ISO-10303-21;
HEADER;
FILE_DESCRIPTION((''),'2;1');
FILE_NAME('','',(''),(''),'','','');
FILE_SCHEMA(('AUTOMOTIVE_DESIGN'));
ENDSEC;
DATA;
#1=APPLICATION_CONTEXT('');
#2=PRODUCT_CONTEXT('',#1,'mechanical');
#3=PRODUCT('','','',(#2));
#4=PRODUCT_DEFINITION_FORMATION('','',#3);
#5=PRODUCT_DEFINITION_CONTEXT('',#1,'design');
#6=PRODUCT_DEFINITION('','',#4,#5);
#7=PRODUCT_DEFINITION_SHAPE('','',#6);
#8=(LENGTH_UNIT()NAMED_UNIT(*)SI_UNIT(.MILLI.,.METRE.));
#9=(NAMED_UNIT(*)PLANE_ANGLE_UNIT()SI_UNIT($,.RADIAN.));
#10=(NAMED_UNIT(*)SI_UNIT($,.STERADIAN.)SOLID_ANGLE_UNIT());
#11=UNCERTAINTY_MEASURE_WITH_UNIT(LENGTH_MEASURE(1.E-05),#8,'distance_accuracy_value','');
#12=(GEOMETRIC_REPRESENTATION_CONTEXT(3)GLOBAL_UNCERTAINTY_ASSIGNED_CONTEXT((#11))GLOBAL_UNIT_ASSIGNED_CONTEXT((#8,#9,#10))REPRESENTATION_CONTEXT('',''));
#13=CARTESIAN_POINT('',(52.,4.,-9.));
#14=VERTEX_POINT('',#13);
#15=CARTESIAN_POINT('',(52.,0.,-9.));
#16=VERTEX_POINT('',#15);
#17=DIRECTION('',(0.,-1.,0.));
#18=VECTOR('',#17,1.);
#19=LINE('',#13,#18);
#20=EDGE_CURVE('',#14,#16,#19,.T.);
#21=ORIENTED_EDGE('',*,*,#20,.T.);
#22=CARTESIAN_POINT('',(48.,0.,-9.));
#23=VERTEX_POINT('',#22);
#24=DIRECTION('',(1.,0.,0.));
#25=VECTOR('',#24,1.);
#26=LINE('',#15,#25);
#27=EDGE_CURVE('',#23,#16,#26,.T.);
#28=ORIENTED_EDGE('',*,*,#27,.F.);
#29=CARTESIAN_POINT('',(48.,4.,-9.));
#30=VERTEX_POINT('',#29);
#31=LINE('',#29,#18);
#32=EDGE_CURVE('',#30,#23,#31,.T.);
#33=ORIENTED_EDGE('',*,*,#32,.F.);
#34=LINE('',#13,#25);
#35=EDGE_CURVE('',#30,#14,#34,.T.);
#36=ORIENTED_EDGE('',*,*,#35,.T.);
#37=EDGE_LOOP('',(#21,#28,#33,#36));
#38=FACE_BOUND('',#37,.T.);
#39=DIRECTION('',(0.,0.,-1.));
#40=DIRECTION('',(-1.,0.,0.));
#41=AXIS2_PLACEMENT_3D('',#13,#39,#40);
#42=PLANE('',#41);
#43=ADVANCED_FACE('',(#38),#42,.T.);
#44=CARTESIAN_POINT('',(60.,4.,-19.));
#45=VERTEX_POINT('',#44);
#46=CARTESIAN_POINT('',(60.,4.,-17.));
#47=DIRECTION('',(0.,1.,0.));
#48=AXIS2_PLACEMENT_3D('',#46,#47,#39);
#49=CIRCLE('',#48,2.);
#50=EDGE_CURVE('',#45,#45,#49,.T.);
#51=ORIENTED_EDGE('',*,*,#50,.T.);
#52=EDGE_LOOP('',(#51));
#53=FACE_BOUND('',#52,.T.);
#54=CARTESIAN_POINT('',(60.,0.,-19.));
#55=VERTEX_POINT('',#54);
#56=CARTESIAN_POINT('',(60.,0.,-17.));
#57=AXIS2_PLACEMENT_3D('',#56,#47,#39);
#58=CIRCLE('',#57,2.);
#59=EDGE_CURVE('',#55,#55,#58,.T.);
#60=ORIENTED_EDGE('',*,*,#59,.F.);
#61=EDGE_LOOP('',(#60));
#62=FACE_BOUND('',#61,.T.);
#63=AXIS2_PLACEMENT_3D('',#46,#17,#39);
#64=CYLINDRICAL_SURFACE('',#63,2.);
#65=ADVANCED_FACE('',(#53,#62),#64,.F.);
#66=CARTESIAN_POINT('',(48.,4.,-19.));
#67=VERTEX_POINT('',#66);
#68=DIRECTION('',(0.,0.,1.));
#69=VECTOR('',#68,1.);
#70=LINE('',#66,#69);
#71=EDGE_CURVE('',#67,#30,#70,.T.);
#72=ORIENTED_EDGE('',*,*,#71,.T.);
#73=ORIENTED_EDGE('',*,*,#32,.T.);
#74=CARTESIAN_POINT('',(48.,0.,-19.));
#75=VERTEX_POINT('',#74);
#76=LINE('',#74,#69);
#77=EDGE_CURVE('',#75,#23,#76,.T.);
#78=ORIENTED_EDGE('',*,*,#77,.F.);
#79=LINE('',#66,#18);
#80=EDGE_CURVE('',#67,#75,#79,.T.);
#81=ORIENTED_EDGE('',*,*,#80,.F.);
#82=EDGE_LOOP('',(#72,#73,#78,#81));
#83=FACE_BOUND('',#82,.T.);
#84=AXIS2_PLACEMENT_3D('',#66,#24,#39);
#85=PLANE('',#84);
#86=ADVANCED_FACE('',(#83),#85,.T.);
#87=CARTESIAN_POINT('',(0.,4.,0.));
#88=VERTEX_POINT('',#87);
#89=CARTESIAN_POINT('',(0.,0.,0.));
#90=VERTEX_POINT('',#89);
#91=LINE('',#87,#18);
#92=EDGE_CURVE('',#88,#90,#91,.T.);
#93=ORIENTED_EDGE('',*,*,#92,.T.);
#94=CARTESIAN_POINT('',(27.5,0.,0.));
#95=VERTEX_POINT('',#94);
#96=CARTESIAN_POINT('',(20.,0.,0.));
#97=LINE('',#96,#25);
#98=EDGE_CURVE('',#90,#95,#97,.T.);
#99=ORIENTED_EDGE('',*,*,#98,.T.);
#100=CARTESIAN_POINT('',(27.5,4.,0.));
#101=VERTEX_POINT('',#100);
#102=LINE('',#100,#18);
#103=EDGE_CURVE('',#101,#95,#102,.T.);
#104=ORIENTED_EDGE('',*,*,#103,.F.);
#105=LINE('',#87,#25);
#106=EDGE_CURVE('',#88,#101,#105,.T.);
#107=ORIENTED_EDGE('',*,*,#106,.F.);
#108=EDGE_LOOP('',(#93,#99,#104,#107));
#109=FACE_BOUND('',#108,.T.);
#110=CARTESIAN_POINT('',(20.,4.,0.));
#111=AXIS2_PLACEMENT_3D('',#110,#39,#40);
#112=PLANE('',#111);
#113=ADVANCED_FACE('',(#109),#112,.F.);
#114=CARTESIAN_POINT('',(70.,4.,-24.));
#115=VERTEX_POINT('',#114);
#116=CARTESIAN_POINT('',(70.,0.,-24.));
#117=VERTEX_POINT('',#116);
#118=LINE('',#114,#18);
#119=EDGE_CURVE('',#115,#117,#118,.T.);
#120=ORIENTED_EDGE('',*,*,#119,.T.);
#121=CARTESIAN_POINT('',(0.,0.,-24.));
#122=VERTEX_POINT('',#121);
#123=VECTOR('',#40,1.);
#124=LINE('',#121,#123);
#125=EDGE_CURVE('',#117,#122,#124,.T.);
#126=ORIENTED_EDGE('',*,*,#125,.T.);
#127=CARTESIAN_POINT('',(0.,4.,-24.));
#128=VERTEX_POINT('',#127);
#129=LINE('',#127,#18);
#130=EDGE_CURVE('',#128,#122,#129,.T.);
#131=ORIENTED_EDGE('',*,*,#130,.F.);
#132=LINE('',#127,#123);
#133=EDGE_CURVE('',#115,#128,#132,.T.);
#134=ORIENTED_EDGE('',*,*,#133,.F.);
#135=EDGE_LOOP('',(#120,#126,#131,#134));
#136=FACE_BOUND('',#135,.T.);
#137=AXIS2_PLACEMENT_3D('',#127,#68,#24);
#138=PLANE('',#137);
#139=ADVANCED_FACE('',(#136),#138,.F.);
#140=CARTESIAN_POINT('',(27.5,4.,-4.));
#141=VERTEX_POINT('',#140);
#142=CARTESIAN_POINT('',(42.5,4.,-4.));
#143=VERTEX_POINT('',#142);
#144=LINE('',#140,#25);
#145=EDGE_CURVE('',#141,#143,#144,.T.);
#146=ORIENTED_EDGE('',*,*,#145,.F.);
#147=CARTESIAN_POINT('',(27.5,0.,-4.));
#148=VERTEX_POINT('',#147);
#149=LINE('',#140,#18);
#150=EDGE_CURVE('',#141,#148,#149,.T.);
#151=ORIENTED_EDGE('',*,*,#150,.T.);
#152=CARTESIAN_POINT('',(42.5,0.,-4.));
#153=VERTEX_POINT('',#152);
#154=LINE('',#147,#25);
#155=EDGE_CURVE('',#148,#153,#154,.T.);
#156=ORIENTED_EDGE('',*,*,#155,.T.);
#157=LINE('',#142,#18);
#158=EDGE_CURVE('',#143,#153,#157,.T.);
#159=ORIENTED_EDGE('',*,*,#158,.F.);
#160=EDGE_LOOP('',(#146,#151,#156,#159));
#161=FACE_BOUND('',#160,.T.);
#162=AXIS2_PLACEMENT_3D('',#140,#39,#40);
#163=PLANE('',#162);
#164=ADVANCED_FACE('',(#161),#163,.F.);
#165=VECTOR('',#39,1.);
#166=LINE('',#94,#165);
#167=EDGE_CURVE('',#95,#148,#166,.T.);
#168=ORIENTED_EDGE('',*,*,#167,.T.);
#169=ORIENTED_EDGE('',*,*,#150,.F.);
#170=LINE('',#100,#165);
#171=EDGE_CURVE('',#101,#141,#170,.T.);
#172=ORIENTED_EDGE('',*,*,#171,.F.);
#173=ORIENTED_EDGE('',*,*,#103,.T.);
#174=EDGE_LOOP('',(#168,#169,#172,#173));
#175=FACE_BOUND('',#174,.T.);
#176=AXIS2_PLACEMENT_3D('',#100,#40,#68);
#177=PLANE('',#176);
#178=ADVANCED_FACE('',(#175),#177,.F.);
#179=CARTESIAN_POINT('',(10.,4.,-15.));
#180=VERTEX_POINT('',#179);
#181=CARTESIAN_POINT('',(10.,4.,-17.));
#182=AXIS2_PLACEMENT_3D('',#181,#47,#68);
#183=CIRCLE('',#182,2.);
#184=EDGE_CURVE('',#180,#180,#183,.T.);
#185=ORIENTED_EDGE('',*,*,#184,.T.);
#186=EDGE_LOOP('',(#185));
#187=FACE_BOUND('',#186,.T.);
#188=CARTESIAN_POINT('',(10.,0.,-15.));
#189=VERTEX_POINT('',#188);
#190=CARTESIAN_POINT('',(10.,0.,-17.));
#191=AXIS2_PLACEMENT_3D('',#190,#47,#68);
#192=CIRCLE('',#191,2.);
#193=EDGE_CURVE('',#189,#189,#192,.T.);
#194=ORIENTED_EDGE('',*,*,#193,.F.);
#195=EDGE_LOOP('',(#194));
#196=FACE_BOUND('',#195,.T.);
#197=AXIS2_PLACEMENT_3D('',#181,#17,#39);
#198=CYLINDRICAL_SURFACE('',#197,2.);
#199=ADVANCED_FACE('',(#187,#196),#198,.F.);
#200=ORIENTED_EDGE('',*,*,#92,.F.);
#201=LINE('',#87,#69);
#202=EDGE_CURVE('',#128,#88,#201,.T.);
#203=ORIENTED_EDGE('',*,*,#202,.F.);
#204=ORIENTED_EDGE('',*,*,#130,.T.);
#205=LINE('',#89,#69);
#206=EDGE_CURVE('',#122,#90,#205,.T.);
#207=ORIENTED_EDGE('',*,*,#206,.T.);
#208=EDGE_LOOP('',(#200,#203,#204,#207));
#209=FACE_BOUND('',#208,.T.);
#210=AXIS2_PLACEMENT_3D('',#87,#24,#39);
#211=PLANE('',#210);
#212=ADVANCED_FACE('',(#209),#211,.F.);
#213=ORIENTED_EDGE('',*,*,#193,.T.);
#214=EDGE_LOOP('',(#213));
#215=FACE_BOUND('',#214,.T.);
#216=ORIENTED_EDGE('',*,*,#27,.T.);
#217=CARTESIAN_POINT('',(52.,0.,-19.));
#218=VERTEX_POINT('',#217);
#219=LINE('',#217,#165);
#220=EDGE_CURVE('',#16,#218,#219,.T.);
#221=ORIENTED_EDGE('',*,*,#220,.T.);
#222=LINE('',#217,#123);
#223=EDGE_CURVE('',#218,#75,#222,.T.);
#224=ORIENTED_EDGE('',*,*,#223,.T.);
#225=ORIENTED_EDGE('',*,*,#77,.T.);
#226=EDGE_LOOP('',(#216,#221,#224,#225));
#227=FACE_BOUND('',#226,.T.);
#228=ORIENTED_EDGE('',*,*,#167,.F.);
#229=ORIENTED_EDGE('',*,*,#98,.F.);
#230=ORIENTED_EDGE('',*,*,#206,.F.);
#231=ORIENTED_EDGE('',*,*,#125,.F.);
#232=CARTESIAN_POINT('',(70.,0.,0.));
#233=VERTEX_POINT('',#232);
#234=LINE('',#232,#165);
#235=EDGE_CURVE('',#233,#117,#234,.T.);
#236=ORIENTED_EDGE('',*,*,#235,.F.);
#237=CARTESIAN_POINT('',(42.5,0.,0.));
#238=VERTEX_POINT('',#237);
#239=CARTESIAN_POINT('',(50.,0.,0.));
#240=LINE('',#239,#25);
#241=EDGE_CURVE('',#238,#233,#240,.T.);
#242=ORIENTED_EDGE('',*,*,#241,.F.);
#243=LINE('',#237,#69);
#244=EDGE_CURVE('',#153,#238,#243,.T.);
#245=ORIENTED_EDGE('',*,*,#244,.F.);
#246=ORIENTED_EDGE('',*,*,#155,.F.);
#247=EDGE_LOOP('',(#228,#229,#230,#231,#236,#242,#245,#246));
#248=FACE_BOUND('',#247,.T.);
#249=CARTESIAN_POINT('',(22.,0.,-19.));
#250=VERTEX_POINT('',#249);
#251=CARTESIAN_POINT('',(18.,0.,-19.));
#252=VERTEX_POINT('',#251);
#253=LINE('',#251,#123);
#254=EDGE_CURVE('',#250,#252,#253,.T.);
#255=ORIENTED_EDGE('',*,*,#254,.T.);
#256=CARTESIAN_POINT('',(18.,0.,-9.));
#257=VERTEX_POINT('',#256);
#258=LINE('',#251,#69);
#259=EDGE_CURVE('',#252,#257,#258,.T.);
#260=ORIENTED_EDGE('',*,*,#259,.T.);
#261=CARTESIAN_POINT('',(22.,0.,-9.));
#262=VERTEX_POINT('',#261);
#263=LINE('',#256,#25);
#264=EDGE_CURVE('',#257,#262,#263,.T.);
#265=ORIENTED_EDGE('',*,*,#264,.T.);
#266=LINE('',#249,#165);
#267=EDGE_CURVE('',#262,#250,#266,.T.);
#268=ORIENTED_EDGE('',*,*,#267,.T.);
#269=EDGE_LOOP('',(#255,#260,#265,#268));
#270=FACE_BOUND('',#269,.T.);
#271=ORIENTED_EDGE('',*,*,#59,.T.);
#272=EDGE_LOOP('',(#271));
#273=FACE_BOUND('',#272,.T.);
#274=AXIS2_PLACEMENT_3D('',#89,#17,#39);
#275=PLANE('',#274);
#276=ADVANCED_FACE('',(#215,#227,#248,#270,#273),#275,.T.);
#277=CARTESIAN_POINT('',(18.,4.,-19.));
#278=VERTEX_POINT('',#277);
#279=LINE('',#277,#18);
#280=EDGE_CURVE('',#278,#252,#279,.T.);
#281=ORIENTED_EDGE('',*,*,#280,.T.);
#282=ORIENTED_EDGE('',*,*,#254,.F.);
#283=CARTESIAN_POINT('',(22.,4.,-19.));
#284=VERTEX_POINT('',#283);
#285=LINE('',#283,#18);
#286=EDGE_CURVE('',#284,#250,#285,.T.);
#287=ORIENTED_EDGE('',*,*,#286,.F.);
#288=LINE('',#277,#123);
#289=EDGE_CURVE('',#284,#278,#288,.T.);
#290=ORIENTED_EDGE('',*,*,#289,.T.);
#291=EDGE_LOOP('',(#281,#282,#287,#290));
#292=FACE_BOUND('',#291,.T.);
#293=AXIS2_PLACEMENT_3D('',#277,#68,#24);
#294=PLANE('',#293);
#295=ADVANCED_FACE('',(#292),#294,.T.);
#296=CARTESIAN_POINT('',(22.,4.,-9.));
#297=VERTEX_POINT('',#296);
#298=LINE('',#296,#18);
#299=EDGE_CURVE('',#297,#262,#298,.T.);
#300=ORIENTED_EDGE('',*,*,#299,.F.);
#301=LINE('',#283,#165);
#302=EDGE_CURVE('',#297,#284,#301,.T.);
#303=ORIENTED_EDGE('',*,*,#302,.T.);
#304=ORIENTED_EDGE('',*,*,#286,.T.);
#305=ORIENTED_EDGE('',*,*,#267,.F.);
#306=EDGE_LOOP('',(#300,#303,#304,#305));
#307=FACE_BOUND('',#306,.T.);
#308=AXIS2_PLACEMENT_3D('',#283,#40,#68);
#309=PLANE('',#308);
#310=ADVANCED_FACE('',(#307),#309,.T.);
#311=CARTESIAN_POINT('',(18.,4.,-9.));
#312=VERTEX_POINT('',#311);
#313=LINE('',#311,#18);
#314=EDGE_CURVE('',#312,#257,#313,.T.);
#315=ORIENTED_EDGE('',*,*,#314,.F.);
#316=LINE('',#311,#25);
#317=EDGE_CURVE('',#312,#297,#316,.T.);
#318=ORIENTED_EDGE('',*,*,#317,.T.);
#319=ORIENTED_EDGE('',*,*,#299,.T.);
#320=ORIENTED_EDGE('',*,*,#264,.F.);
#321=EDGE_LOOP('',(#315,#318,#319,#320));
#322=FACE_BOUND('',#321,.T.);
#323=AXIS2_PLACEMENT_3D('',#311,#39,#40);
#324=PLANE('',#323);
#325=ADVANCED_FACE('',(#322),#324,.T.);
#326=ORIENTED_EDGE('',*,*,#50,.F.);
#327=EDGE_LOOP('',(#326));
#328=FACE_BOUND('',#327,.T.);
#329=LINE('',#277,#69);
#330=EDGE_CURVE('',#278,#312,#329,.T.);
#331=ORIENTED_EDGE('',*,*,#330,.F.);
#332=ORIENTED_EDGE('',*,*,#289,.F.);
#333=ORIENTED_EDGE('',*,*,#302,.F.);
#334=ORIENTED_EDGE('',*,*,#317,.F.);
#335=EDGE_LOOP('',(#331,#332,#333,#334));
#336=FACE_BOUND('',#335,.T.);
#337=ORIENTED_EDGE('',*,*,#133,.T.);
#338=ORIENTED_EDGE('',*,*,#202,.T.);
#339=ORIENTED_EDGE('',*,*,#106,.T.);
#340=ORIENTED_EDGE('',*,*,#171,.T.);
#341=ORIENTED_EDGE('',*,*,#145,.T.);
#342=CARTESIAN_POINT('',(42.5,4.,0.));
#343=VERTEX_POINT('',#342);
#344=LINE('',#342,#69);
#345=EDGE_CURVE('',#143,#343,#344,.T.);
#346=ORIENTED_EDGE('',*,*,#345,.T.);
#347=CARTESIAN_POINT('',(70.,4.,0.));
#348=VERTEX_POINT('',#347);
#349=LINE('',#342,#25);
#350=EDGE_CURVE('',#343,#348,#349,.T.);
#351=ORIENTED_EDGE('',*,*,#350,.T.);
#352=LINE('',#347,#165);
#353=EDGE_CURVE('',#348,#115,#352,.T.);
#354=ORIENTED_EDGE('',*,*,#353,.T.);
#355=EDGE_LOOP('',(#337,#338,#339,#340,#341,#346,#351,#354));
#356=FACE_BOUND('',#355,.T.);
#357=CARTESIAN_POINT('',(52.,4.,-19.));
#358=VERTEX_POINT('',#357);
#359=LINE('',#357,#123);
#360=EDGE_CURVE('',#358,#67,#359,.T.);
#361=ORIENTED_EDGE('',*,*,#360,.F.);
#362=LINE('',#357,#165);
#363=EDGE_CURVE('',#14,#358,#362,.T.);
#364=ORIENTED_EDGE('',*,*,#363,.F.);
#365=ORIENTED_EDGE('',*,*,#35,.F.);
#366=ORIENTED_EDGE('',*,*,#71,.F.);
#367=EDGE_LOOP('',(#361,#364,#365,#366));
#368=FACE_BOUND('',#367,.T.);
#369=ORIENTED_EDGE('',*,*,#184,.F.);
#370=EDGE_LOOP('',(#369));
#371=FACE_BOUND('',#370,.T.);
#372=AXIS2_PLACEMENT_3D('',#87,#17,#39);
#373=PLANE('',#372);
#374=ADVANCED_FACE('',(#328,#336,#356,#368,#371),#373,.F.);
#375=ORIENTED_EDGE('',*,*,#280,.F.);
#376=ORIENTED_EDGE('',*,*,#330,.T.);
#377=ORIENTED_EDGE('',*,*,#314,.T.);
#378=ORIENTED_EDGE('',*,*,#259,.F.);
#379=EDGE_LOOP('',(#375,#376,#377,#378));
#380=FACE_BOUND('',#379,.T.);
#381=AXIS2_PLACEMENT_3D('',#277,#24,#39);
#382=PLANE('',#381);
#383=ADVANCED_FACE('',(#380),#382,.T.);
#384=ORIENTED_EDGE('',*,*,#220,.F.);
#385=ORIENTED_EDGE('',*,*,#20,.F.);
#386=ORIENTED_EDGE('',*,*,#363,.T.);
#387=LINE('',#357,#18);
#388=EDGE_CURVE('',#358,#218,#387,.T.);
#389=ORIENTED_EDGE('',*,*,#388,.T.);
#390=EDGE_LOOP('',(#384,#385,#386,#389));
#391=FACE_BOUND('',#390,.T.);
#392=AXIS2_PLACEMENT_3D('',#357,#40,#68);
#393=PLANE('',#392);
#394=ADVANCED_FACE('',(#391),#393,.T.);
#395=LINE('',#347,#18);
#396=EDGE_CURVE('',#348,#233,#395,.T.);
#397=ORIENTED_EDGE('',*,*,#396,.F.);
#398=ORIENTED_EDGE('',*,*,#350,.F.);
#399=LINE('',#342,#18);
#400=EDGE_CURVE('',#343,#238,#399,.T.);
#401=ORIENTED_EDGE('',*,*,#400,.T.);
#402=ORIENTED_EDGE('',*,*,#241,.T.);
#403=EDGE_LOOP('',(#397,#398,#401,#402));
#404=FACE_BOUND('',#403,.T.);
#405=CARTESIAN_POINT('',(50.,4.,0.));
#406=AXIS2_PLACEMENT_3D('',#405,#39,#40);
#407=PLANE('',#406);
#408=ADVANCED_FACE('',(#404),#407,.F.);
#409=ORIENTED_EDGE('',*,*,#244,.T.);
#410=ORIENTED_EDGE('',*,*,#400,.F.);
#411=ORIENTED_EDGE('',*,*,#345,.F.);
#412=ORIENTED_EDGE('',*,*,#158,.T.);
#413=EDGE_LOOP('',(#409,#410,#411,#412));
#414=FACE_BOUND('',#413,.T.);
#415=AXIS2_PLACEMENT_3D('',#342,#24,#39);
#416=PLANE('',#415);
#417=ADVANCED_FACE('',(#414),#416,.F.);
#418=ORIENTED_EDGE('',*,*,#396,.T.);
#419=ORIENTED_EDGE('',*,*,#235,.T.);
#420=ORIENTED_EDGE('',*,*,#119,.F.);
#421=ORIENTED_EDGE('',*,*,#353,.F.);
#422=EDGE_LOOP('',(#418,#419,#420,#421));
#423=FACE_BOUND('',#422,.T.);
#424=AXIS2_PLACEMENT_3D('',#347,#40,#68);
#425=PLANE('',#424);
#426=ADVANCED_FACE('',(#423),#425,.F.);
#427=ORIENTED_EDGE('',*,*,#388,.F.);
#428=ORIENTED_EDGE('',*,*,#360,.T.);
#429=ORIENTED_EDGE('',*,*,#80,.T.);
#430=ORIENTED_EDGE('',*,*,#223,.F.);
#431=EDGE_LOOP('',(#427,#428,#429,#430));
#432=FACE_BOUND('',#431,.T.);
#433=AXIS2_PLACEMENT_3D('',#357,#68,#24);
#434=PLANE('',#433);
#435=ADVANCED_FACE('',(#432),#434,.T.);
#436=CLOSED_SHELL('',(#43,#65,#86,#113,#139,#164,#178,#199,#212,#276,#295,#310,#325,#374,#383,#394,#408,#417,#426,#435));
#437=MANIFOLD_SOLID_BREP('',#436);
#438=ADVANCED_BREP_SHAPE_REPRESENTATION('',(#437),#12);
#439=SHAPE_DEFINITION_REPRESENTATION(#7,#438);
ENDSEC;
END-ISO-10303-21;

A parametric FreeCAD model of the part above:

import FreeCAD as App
import Part
import Sketcher

V = App.Vector
Q = App.Units.Quantity

doc = App.newDocument("Part")
body = doc.addObject("PartDesign::Body", "Body")

# Sketch on XZ plane
sketch1 = body.newObject("Sketcher::SketchObject", "Sketch")
sketch1.AttachmentSupport = (doc.getObject("XZ_Plane"), [""])
sketch1.MapMode = "FlatFace"
sketch1.addGeometry([
    Part.LineSegment(V(0, 0, 0), V(27.5, 0, 0)),  # 0
    Part.LineSegment(V(27.5, 0, 0), V(27.5, -4, 0)),  # 1
    Part.LineSegment(V(27.5, -4, 0), V(42.5, -4, 0)),  # 2
    Part.LineSegment(V(42.5, -4, 0), V(42.5, 0, 0)),  # 3
    Part.LineSegment(V(42.5, 0, 0), V(70, 0, 0)),  # 4
    Part.LineSegment(V(70, 0, 0), V(70, -24, 0)),  # 5
    Part.LineSegment(V(70, -24, 0), V(0, -24, 0)),  # 6
    Part.LineSegment(V(0, -24, 0), V(0, 0, 0)),  # 7
    Part.LineSegment(V(22, -9, 0), V(18, -9, 0)),  # 8
    Part.LineSegment(V(18, -9, 0), V(18, -19, 0)),  # 9
    Part.LineSegment(V(18, -19, 0), V(22, -19, 0)),  # 10
    Part.LineSegment(V(22, -19, 0), V(22, -9, 0)),  # 11
    Part.Circle(V(10, -17, 0), V(0, 0, 1), 2),  # 12
    Part.LineSegment(V(52, -9, 0), V(48, -9, 0)),  # 13
    Part.LineSegment(V(48, -9, 0), V(48, -19, 0)),  # 14
    Part.LineSegment(V(48, -19, 0), V(52, -19, 0)),  # 15
    Part.LineSegment(V(52, -19, 0), V(52, -9, 0)),  # 16
    Part.Circle(V(60, -17, 0), V(0, 0, 1), 2),  # 17
], False)
sketch1.addConstraint([
    Sketcher.Constraint("Coincident", 0, 2, 1, 1),
    Sketcher.Constraint("Coincident", 1, 2, 2, 1),
    Sketcher.Constraint("Coincident", 2, 2, 3, 1),
    Sketcher.Constraint("Coincident", 3, 2, 4, 1),
    Sketcher.Constraint("Coincident", 4, 2, 5, 1),
    Sketcher.Constraint("Coincident", 5, 2, 6, 1),
    Sketcher.Constraint("Coincident", 6, 2, 7, 1),
    Sketcher.Constraint("Coincident", 7, 2, 0, 1),
    Sketcher.Constraint("Coincident", 8, 2, 9, 1),
    Sketcher.Constraint("Coincident", 9, 2, 10, 1),
    Sketcher.Constraint("Coincident", 10, 2, 11, 1),
    Sketcher.Constraint("Coincident", 11, 2, 8, 1),
    Sketcher.Constraint("Coincident", 13, 2, 14, 1),
    Sketcher.Constraint("Coincident", 14, 2, 15, 1),
    Sketcher.Constraint("Coincident", 15, 2, 16, 1),
    Sketcher.Constraint("Coincident", 16, 2, 13, 1),
    Sketcher.Constraint("Horizontal", 0),
    Sketcher.Constraint("Vertical", 1),
    Sketcher.Constraint("Horizontal", 2),
    Sketcher.Constraint("Vertical", 3),
    Sketcher.Constraint("Horizontal", 4),
    Sketcher.Constraint("Vertical", 5),
    Sketcher.Constraint("Horizontal", 6),
    Sketcher.Constraint("Vertical", 7),
    Sketcher.Constraint("Horizontal", 8),
    Sketcher.Constraint("Vertical", 9),
    Sketcher.Constraint("Horizontal", 10),
    Sketcher.Constraint("Vertical", 11),
    Sketcher.Constraint("Horizontal", 13),
    Sketcher.Constraint("Vertical", 14),
    Sketcher.Constraint("Horizontal", 15),
    Sketcher.Constraint("Vertical", 16),
    Sketcher.Constraint("Coincident", 7, 2, -1, 1),
    Sketcher.Constraint("Equal", 12, 17),
    Sketcher.Constraint("PointOnObject", 3, 2, -1),
    Sketcher.Constraint("Horizontal", 12, 3, 17, 3),
    Sketcher.Constraint("Horizontal", 11, 2, 13, 2),
    Sketcher.Constraint("Horizontal", 10, 2, 14, 2),
    Sketcher.Constraint("Equal", 0, 4),
    Sketcher.Constraint("Equal", 10, 13),
    Sketcher.Constraint("Equal", 15, 1),
    Sketcher.Constraint("Diameter", 12, Q("4 mm")),
    Sketcher.Constraint("DistanceX", 2, 1, 2, 2, Q("15 mm")),
    Sketcher.Constraint("DistanceX", 6, 2, 6, 1, Q("70 mm")),
    Sketcher.Constraint("DistanceX", 8, 2, 8, 1, Q("4 mm")),
    Sketcher.Constraint("DistanceY", 5, 2, 5, 1, Q("24 mm")),
    Sketcher.Constraint("DistanceY", 9, 2, 9, 1, Q("10 mm")),
    Sketcher.Constraint("DistanceX", -1, 1, 12, 3, Q("10 mm")),
    Sketcher.Constraint("DistanceY", 12, 3, -1, 1, Q("17 mm")),
    Sketcher.Constraint("DistanceX", -1, 1, 17, 3, Q("60 mm")),
    Sketcher.Constraint("DistanceX", -1, 1, 8, 2, Q("18 mm")),
    Sketcher.Constraint("DistanceY", 8, 2, -1, 1, Q("9 mm")),
    Sketcher.Constraint("DistanceX", -1, 1, 13, 2, Q("48 mm")),
])
pad1 = body.newObject("PartDesign::Pad", "Pad")
pad1.Profile = sketch1
pad1.Length = 4
pad1.Reversed = True

doc.recompute()
